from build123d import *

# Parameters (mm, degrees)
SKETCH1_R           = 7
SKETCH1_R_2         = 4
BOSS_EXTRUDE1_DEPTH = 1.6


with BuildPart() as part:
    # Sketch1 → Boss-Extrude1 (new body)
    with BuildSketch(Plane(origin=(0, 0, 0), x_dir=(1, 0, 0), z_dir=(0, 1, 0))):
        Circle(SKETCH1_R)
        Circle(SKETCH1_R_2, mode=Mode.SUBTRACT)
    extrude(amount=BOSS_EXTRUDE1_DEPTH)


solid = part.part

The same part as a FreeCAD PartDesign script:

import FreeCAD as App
import Part
import Sketcher

doc = App.newDocument("Part")
body = doc.addObject("PartDesign::Body", "Body")

sketch1 = body.newObject("Sketcher::SketchObject", "Sketch")
sketch1.AttachmentSupport = (doc.getObject("XZ_Plane"), [""])
sketch1.MapMode = "FlatFace"
sketch1.addGeometry([
    Part.Circle(App.Vector(0, 0, 0), App.Vector(0, 0, 1), 7),
    Part.Circle(App.Vector(0, 0, 0), App.Vector(0, 0, 1), 4),
], False)
sketch1.addConstraint([
    Sketcher.Constraint("Coincident", 0, 3, -1, 1),
    Sketcher.Constraint("Coincident", 1, 3, -1, 1),
    Sketcher.Constraint("Diameter", 0, 14.0),
    Sketcher.Constraint("Diameter", 1, 8.0),
])
pad1 = body.newObject("PartDesign::Pad", "Pad")
pad1.Profile = sketch1
pad1.Length = 1.6
pad1.Reversed = True

doc.recompute()
